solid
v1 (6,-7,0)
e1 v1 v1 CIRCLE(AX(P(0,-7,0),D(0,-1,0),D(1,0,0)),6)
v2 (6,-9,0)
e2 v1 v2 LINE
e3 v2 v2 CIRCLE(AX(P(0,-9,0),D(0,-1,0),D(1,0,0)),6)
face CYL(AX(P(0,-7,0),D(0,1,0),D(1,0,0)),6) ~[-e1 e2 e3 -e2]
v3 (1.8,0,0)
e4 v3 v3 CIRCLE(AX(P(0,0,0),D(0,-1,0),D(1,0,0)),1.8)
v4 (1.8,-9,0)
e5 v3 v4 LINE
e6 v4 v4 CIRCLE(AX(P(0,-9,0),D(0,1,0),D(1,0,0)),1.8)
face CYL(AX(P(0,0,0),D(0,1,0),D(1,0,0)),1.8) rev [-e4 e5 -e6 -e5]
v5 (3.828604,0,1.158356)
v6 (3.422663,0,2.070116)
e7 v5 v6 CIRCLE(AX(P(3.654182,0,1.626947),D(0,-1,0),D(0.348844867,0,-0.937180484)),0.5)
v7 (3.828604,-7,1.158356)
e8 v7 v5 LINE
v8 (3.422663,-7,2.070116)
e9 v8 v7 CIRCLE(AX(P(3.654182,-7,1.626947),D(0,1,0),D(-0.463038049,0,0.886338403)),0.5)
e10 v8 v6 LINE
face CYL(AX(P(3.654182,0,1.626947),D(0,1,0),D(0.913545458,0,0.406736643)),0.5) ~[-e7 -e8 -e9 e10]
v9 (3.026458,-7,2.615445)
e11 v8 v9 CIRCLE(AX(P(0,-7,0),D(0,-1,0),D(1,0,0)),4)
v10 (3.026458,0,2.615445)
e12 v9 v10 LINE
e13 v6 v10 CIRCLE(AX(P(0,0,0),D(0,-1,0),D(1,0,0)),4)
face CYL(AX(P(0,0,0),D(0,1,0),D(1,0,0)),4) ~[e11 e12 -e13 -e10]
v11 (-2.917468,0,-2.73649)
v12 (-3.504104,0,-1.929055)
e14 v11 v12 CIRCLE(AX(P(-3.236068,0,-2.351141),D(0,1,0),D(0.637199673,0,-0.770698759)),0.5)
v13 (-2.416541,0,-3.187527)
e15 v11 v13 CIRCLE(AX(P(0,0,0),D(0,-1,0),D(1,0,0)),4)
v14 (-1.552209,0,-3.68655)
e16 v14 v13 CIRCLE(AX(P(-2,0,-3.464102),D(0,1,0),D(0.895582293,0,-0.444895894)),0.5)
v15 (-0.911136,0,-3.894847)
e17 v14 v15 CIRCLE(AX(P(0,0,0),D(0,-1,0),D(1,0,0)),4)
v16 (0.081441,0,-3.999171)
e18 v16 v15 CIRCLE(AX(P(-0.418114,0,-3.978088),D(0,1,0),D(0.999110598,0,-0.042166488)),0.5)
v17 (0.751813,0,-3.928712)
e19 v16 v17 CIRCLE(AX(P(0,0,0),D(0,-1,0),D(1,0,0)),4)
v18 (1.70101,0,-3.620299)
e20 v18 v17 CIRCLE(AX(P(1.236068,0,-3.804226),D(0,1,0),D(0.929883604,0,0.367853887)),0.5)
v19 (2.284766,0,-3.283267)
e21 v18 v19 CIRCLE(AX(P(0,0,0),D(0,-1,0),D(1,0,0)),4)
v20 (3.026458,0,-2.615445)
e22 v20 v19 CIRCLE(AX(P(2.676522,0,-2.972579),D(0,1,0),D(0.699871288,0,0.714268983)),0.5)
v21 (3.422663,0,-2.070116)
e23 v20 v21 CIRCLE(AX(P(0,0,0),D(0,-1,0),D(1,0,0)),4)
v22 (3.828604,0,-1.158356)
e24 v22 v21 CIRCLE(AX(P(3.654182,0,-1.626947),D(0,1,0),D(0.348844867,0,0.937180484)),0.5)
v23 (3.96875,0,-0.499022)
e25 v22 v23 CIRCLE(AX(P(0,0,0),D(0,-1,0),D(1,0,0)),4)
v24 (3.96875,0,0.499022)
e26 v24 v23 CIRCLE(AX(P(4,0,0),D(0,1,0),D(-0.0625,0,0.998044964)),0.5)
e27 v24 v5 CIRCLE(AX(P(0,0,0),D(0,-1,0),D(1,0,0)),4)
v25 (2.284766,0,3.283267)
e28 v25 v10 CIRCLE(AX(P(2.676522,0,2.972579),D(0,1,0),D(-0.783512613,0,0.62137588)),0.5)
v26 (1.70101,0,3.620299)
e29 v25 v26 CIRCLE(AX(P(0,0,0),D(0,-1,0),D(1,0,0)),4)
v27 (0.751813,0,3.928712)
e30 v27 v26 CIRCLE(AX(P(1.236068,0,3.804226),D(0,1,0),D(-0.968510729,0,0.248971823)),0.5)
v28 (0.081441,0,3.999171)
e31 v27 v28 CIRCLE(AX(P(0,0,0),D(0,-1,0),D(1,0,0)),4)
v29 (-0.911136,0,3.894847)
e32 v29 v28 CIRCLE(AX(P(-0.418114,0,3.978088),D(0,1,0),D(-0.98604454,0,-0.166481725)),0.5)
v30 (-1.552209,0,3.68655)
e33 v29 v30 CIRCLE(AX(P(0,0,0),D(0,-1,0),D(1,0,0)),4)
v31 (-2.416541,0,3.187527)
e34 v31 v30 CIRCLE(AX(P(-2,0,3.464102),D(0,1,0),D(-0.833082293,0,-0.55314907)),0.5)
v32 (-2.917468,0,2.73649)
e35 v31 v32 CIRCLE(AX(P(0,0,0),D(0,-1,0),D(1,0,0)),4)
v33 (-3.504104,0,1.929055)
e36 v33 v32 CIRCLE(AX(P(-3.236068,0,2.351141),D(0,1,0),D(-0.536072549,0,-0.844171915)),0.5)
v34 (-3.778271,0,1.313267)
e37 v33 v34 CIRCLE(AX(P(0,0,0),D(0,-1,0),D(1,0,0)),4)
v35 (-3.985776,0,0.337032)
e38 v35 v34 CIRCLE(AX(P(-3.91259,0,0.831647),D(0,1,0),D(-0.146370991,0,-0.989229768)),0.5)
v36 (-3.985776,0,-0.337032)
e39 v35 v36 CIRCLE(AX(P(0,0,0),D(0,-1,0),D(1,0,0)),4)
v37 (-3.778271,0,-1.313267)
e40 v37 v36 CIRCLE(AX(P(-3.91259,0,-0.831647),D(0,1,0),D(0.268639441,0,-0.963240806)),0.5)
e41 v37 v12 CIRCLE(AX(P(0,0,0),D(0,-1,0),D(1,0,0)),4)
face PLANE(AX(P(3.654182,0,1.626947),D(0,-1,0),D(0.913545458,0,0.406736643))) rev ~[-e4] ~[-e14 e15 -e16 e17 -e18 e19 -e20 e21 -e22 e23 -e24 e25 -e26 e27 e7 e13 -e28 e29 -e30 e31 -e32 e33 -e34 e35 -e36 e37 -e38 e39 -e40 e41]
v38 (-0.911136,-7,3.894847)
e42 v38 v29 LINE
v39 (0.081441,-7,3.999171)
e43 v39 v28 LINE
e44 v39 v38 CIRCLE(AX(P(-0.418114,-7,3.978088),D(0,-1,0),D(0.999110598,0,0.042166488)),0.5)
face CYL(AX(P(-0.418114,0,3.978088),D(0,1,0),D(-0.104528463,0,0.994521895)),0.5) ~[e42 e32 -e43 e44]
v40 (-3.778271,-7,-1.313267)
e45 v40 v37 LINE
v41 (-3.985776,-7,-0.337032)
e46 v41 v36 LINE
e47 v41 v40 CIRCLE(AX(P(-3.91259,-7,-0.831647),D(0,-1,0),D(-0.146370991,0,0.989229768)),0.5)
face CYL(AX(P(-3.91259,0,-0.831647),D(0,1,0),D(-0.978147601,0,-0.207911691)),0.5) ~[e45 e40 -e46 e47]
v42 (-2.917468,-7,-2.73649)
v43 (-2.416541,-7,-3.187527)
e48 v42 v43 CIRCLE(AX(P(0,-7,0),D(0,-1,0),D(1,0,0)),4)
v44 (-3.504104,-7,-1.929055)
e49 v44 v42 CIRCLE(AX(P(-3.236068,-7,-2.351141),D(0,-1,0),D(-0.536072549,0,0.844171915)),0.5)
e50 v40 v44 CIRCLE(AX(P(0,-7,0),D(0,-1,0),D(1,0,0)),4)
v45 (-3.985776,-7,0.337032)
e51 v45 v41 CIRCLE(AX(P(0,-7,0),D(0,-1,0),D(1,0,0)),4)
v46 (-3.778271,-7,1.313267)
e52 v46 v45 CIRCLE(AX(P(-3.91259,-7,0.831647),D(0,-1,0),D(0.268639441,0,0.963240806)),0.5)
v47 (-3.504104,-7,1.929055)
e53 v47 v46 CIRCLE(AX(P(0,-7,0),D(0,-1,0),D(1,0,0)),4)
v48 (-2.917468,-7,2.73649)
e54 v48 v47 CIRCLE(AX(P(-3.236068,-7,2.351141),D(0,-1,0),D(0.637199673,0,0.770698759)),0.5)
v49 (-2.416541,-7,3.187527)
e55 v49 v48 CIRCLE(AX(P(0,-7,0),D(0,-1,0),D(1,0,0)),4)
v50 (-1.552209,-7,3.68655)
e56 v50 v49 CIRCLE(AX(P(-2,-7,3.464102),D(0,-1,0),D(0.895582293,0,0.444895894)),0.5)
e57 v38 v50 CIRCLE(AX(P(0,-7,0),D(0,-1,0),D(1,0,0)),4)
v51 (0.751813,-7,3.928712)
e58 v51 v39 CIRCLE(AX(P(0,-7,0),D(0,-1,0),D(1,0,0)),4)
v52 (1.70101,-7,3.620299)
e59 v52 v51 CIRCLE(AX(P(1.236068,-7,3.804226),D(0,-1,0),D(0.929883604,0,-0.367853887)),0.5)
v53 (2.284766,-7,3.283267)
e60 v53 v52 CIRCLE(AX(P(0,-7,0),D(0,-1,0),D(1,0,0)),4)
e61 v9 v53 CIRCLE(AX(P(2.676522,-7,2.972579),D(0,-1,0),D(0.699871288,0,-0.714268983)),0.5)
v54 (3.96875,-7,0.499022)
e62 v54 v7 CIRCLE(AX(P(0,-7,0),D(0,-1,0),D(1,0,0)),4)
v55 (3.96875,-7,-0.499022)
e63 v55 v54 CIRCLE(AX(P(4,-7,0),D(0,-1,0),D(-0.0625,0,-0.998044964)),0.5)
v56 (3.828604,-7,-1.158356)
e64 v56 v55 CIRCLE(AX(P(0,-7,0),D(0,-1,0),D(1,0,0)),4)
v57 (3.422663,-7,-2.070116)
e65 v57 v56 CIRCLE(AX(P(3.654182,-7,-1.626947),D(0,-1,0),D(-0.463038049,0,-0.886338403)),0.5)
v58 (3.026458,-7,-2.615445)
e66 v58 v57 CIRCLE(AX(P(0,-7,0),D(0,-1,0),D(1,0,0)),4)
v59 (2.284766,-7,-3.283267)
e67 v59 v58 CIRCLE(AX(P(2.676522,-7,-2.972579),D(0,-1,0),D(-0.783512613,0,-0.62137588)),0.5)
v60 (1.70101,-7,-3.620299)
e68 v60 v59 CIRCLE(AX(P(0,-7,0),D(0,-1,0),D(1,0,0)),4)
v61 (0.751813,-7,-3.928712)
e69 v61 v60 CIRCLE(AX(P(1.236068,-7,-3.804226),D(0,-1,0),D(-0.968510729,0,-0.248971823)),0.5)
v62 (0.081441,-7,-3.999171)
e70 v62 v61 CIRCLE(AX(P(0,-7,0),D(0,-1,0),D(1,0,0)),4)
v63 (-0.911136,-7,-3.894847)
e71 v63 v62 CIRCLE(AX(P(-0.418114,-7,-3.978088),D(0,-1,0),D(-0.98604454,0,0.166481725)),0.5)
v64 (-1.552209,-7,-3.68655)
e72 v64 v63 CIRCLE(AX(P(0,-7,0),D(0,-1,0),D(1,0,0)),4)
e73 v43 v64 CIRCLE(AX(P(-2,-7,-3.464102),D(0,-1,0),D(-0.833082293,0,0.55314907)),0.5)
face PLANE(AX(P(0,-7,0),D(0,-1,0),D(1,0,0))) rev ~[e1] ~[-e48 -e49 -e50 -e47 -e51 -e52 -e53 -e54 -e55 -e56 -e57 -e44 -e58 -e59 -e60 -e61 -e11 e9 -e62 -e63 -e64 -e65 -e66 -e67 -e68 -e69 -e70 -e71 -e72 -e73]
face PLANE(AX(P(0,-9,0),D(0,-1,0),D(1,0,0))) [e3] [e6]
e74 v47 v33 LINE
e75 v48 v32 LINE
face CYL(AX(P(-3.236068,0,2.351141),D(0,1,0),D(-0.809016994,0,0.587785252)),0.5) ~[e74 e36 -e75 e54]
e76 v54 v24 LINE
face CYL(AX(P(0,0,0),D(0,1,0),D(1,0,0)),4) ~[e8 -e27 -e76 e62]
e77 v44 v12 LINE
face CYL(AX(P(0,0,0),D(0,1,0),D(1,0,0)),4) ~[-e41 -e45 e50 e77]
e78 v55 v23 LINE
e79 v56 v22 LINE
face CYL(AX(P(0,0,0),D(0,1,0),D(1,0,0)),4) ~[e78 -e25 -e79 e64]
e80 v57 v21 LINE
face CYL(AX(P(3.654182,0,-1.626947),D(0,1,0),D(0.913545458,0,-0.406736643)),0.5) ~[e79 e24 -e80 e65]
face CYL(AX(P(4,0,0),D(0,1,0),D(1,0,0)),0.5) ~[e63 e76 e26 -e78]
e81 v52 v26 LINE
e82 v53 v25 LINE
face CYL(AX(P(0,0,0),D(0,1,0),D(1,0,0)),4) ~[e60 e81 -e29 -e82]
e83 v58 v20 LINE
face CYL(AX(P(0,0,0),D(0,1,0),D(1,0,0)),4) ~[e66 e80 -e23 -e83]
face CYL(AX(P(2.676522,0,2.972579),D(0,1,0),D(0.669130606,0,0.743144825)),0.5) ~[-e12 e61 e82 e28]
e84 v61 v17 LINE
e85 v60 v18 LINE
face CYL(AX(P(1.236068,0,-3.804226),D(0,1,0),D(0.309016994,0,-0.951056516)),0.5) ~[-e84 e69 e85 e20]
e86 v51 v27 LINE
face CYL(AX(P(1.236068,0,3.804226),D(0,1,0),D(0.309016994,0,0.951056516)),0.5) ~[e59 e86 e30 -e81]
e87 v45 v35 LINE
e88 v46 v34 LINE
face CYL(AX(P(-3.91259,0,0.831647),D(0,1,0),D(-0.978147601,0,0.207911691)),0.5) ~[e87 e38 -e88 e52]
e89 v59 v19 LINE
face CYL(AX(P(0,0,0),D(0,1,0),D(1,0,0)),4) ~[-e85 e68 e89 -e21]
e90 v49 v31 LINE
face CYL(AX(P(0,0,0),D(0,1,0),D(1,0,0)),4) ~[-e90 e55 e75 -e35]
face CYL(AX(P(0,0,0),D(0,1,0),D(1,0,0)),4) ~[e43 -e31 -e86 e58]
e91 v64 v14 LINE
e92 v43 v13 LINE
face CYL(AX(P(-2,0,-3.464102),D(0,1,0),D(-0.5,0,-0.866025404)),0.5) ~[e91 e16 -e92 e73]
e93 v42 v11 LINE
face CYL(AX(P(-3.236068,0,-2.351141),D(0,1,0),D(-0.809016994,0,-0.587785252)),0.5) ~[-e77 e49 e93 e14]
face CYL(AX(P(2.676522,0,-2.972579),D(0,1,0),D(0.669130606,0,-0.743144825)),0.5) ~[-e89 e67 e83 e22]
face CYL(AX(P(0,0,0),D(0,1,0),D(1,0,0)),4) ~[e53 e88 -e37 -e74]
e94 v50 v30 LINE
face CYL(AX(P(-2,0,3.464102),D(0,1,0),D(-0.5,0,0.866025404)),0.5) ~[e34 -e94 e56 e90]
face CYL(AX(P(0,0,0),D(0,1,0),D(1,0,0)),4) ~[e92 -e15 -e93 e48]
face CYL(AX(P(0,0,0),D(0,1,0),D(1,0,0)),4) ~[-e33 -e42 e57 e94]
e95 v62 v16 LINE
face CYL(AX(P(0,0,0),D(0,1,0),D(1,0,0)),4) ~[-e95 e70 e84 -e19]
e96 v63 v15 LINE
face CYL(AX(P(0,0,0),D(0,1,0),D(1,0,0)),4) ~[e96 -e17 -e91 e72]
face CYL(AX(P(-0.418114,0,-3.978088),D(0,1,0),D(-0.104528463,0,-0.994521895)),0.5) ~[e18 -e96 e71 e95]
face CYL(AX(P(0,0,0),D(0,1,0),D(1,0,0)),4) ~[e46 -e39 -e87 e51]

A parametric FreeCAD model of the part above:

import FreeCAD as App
import Part
import Sketcher
Q = App.Units.Quantity

doc = App.newDocument("Part")
params = doc.addObject("Spreadsheet::Sheet", "Params")
for row, (alias, value) in enumerate([
    ("sketch1_diameter", "3.6 mm"),
    ("pad1_length", "20 mm"),
    ("sketch2_diameter", "12 mm"),
    ("pad2_length", "2 mm"),
    ("sketch3_diameter", "1 mm"),
    ("pad3_length", "7 mm"),
    ("sketch4_diameter", "8 mm"),
    ("pad4_length", "7 mm"),
], start=1):
    params.set(f"A{row}", alias)
    params.set(f"B{row}", "=" + value)
    params.setAlias(f"B{row}", alias)

body = doc.addObject("PartDesign::Body", "Body")

# Sketch on XZ plane
sketch1 = body.newObject("Sketcher::SketchObject", "Sketch")
sketch1.AttachmentSupport = (doc.getObject("XZ_Plane"), [""])
sketch1.MapMode = "FlatFace"
sketch1.addGeometry(Part.Circle(App.Vector(0, 0, 0), App.Vector(0, 0, 1), 1.8), False)
sketch1.addConstraint([
    Sketcher.Constraint("Coincident", 0, 3, -1, 1),
    Sketcher.Constraint("Diameter", 0, Q("3.6 mm")),
])
sketch1.setExpression("Constraints[1]", "Params.sketch1_diameter")
pad1 = body.newObject("PartDesign::Pad", "Pad")
pad1.Profile = sketch1
pad1.setExpression("Length", "Params.pad1_length")
body2 = doc.addObject("PartDesign::Body", "Body001")

# Sketch on XZ plane
sketch2 = body2.newObject("Sketcher::SketchObject", "Sketch001")
sketch2.AttachmentSupport = (doc.getObject("XZ_Plane001"), [""])
sketch2.MapMode = "FlatFace"
sketch2.AttachmentOffset = App.Placement(App.Vector(0, 0, 7), App.Rotation())
sketch2.addGeometry(Part.Circle(App.Vector(0, 0, 0), App.Vector(0, 0, 1), 6), False)
sketch2.addConstraint([
    Sketcher.Constraint("Coincident", 0, 3, -1, 1),
    Sketcher.Constraint("Diameter", 0, Q("12 mm")),
])
sketch2.setExpression("Constraints[1]", "Params.sketch2_diameter")
pad2 = body2.newObject("PartDesign::Pad", "Pad001")
pad2.Profile = sketch2
pad2.setExpression("Length", "Params.pad2_length")
body3 = doc.addObject("PartDesign::Body", "Body002")

# Sketch on XZ plane
sketch3 = body3.newObject("Sketcher::SketchObject", "Sketch002")
sketch3.AttachmentSupport = (doc.getObject("XZ_Plane002"), [""])
sketch3.MapMode = "FlatFace"
sketch3.addGeometry(Part.Circle(App.Vector(4, 0, 0), App.Vector(0, 0, 1), 0.5), False)
sketch3.addConstraint([
    Sketcher.Constraint("PointOnObject", 0, 3, -1),
    Sketcher.Constraint("Diameter", 0, Q("1 mm")),
    Sketcher.Constraint("DistanceX", -1, 1, 0, 3, Q("4 mm")),
])
sketch3.setExpression("Constraints[1]", "Params.sketch3_diameter")
pad3 = body3.newObject("PartDesign::Pad", "Pad002")
pad3.Profile = sketch3
pad3.setExpression("Length", "Params.pad3_length")
body4 = doc.addObject("PartDesign::Body", "Body003")
body4.AllowCompound = True
doc.recompute()

body4.BaseFeature = body3
doc.recompute()

body5 = doc.addObject("PartDesign::Body", "Body004")
body5.BaseFeature = body3
body5.Placement = App.Placement(App.Vector(0, 0, 0), App.Rotation(App.Vector(0, 1, 0), 24))
boolean = body4.newObject("PartDesign::Boolean", "Boolean")
boolean.Type = "Fuse"
boolean.addObjects([body5])
doc.recompute()

body6 = doc.addObject("PartDesign::Body", "Body005")
body6.BaseFeature = body3
body6.Placement = App.Placement(App.Vector(0, 0, 0), App.Rotation(App.Vector(0, 1, 0), 48))
boolean2 = body4.newObject("PartDesign::Boolean", "Boolean001")
boolean2.Type = "Fuse"
boolean2.addObjects([body6])
doc.recompute()

body7 = doc.addObject("PartDesign::Body", "Body006")
body7.BaseFeature = body3
body7.Placement = App.Placement(App.Vector(0, 0, 0), App.Rotation(App.Vector(0, 1, 0), 72))
boolean3 = body4.newObject("PartDesign::Boolean", "Boolean002")
boolean3.Type = "Fuse"
boolean3.addObjects([body7])
doc.recompute()

body8 = doc.addObject("PartDesign::Body", "Body007")
body8.BaseFeature = body3
body8.Placement = App.Placement(App.Vector(0, 0, 0), App.Rotation(App.Vector(0, 1, 0), 96))
boolean4 = body4.newObject("PartDesign::Boolean", "Boolean003")
boolean4.Type = "Fuse"
boolean4.addObjects([body8])
doc.recompute()

body9 = doc.addObject("PartDesign::Body", "Body008")
body9.BaseFeature = body3
body9.Placement = App.Placement(App.Vector(0, 0, 0), App.Rotation(App.Vector(0, 1, 0), 120))
boolean5 = body4.newObject("PartDesign::Boolean", "Boolean004")
boolean5.Type = "Fuse"
boolean5.addObjects([body9])
doc.recompute()

body10 = doc.addObject("PartDesign::Body", "Body009")
body10.BaseFeature = body3
body10.Placement = App.Placement(App.Vector(0, 0, 0), App.Rotation(App.Vector(0, 1, 0), 144))
boolean6 = body4.newObject("PartDesign::Boolean", "Boolean005")
boolean6.Type = "Fuse"
boolean6.addObjects([body10])
doc.recompute()

body11 = doc.addObject("PartDesign::Body", "Body010")
body11.BaseFeature = body3
body11.Placement = App.Placement(App.Vector(0, 0, 0), App.Rotation(App.Vector(0, 1, 0), 168))
boolean7 = body4.newObject("PartDesign::Boolean", "Boolean006")
boolean7.Type = "Fuse"
boolean7.addObjects([body11])
doc.recompute()

body12 = doc.addObject("PartDesign::Body", "Body011")
body12.BaseFeature = body3
body12.Placement = App.Placement(App.Vector(0, 0, 0), App.Rotation(App.Vector(0, 1, 0), 192))
boolean8 = body4.newObject("PartDesign::Boolean", "Boolean007")
boolean8.Type = "Fuse"
boolean8.addObjects([body12])
doc.recompute()

body13 = doc.addObject("PartDesign::Body", "Body012")
body13.BaseFeature = body3
body13.Placement = App.Placement(App.Vector(0, 0, 0), App.Rotation(App.Vector(0, 1, 0), 216))
boolean9 = body4.newObject("PartDesign::Boolean", "Boolean008")
boolean9.Type = "Fuse"
boolean9.addObjects([body13])
doc.recompute()

body14 = doc.addObject("PartDesign::Body", "Body013")
body14.BaseFeature = body3
body14.Placement = App.Placement(App.Vector(0, 0, 0), App.Rotation(App.Vector(0, 1, 0), 240))
boolean10 = body4.newObject("PartDesign::Boolean", "Boolean009")
boolean10.Type = "Fuse"
boolean10.addObjects([body14])
doc.recompute()

body15 = doc.addObject("PartDesign::Body", "Body014")
body15.BaseFeature = body3
body15.Placement = App.Placement(App.Vector(0, 0, 0), App.Rotation(App.Vector(0, 1, 0), 264))
boolean11 = body4.newObject("PartDesign::Boolean", "Boolean010")
boolean11.Type = "Fuse"
boolean11.addObjects([body15])
doc.recompute()

body16 = doc.addObject("PartDesign::Body", "Body015")
body16.BaseFeature = body3
body16.Placement = App.Placement(App.Vector(0, 0, 0), App.Rotation(App.Vector(0, 1, 0), 288))
boolean12 = body4.newObject("PartDesign::Boolean", "Boolean011")
boolean12.Type = "Fuse"
boolean12.addObjects([body16])
doc.recompute()

body17 = doc.addObject("PartDesign::Body", "Body016")
body17.BaseFeature = body3
body17.Placement = App.Placement(App.Vector(0, 0, 0), App.Rotation(App.Vector(0, 1, 0), 312))
boolean13 = body4.newObject("PartDesign::Boolean", "Boolean012")
boolean13.Type = "Fuse"
boolean13.addObjects([body17])
doc.recompute()

body3.Placement = App.Placement(App.Vector(0, 0, 0), App.Rotation(App.Vector(0, 1, 0), 336))
boolean14 = body4.newObject("PartDesign::Boolean", "Boolean013")
boolean14.Type = "Fuse"
boolean14.addObjects([body3])
body18 = doc.addObject("PartDesign::Body", "Body017")

# Sketch on XZ plane
sketch4 = body18.newObject("Sketcher::SketchObject", "Sketch003")
sketch4.AttachmentSupport = (doc.getObject("XZ_Plane017"), [""])
sketch4.MapMode = "FlatFace"
sketch4.addGeometry(Part.Circle(App.Vector(0, 0, 0), App.Vector(0, 0, 1), 4), False)
sketch4.addConstraint([
    Sketcher.Constraint("Coincident", 0, 3, -1, 1),
    Sketcher.Constraint("Diameter", 0, Q("8 mm")),
])
sketch4.setExpression("Constraints[1]", "Params.sketch4_diameter")
pad4 = body18.newObject("PartDesign::Pad", "Pad003")
pad4.Profile = sketch4
pad4.setExpression("Length", "Params.pad4_length")
doc.recompute()

boolean15 = body18.newObject("PartDesign::Boolean", "Boolean014")
boolean15.Type = "Fuse"
boolean15.addObjects([body2])
doc.recompute()

boolean16 = body18.newObject("PartDesign::Boolean", "Boolean015")
boolean16.Type = "Fuse"
boolean16.addObjects([body4])
doc.recompute()

boolean17 = body18.newObject("PartDesign::Boolean", "Boolean016")
boolean17.Type = "Cut"
boolean17.addObjects([body])

doc.recompute()
